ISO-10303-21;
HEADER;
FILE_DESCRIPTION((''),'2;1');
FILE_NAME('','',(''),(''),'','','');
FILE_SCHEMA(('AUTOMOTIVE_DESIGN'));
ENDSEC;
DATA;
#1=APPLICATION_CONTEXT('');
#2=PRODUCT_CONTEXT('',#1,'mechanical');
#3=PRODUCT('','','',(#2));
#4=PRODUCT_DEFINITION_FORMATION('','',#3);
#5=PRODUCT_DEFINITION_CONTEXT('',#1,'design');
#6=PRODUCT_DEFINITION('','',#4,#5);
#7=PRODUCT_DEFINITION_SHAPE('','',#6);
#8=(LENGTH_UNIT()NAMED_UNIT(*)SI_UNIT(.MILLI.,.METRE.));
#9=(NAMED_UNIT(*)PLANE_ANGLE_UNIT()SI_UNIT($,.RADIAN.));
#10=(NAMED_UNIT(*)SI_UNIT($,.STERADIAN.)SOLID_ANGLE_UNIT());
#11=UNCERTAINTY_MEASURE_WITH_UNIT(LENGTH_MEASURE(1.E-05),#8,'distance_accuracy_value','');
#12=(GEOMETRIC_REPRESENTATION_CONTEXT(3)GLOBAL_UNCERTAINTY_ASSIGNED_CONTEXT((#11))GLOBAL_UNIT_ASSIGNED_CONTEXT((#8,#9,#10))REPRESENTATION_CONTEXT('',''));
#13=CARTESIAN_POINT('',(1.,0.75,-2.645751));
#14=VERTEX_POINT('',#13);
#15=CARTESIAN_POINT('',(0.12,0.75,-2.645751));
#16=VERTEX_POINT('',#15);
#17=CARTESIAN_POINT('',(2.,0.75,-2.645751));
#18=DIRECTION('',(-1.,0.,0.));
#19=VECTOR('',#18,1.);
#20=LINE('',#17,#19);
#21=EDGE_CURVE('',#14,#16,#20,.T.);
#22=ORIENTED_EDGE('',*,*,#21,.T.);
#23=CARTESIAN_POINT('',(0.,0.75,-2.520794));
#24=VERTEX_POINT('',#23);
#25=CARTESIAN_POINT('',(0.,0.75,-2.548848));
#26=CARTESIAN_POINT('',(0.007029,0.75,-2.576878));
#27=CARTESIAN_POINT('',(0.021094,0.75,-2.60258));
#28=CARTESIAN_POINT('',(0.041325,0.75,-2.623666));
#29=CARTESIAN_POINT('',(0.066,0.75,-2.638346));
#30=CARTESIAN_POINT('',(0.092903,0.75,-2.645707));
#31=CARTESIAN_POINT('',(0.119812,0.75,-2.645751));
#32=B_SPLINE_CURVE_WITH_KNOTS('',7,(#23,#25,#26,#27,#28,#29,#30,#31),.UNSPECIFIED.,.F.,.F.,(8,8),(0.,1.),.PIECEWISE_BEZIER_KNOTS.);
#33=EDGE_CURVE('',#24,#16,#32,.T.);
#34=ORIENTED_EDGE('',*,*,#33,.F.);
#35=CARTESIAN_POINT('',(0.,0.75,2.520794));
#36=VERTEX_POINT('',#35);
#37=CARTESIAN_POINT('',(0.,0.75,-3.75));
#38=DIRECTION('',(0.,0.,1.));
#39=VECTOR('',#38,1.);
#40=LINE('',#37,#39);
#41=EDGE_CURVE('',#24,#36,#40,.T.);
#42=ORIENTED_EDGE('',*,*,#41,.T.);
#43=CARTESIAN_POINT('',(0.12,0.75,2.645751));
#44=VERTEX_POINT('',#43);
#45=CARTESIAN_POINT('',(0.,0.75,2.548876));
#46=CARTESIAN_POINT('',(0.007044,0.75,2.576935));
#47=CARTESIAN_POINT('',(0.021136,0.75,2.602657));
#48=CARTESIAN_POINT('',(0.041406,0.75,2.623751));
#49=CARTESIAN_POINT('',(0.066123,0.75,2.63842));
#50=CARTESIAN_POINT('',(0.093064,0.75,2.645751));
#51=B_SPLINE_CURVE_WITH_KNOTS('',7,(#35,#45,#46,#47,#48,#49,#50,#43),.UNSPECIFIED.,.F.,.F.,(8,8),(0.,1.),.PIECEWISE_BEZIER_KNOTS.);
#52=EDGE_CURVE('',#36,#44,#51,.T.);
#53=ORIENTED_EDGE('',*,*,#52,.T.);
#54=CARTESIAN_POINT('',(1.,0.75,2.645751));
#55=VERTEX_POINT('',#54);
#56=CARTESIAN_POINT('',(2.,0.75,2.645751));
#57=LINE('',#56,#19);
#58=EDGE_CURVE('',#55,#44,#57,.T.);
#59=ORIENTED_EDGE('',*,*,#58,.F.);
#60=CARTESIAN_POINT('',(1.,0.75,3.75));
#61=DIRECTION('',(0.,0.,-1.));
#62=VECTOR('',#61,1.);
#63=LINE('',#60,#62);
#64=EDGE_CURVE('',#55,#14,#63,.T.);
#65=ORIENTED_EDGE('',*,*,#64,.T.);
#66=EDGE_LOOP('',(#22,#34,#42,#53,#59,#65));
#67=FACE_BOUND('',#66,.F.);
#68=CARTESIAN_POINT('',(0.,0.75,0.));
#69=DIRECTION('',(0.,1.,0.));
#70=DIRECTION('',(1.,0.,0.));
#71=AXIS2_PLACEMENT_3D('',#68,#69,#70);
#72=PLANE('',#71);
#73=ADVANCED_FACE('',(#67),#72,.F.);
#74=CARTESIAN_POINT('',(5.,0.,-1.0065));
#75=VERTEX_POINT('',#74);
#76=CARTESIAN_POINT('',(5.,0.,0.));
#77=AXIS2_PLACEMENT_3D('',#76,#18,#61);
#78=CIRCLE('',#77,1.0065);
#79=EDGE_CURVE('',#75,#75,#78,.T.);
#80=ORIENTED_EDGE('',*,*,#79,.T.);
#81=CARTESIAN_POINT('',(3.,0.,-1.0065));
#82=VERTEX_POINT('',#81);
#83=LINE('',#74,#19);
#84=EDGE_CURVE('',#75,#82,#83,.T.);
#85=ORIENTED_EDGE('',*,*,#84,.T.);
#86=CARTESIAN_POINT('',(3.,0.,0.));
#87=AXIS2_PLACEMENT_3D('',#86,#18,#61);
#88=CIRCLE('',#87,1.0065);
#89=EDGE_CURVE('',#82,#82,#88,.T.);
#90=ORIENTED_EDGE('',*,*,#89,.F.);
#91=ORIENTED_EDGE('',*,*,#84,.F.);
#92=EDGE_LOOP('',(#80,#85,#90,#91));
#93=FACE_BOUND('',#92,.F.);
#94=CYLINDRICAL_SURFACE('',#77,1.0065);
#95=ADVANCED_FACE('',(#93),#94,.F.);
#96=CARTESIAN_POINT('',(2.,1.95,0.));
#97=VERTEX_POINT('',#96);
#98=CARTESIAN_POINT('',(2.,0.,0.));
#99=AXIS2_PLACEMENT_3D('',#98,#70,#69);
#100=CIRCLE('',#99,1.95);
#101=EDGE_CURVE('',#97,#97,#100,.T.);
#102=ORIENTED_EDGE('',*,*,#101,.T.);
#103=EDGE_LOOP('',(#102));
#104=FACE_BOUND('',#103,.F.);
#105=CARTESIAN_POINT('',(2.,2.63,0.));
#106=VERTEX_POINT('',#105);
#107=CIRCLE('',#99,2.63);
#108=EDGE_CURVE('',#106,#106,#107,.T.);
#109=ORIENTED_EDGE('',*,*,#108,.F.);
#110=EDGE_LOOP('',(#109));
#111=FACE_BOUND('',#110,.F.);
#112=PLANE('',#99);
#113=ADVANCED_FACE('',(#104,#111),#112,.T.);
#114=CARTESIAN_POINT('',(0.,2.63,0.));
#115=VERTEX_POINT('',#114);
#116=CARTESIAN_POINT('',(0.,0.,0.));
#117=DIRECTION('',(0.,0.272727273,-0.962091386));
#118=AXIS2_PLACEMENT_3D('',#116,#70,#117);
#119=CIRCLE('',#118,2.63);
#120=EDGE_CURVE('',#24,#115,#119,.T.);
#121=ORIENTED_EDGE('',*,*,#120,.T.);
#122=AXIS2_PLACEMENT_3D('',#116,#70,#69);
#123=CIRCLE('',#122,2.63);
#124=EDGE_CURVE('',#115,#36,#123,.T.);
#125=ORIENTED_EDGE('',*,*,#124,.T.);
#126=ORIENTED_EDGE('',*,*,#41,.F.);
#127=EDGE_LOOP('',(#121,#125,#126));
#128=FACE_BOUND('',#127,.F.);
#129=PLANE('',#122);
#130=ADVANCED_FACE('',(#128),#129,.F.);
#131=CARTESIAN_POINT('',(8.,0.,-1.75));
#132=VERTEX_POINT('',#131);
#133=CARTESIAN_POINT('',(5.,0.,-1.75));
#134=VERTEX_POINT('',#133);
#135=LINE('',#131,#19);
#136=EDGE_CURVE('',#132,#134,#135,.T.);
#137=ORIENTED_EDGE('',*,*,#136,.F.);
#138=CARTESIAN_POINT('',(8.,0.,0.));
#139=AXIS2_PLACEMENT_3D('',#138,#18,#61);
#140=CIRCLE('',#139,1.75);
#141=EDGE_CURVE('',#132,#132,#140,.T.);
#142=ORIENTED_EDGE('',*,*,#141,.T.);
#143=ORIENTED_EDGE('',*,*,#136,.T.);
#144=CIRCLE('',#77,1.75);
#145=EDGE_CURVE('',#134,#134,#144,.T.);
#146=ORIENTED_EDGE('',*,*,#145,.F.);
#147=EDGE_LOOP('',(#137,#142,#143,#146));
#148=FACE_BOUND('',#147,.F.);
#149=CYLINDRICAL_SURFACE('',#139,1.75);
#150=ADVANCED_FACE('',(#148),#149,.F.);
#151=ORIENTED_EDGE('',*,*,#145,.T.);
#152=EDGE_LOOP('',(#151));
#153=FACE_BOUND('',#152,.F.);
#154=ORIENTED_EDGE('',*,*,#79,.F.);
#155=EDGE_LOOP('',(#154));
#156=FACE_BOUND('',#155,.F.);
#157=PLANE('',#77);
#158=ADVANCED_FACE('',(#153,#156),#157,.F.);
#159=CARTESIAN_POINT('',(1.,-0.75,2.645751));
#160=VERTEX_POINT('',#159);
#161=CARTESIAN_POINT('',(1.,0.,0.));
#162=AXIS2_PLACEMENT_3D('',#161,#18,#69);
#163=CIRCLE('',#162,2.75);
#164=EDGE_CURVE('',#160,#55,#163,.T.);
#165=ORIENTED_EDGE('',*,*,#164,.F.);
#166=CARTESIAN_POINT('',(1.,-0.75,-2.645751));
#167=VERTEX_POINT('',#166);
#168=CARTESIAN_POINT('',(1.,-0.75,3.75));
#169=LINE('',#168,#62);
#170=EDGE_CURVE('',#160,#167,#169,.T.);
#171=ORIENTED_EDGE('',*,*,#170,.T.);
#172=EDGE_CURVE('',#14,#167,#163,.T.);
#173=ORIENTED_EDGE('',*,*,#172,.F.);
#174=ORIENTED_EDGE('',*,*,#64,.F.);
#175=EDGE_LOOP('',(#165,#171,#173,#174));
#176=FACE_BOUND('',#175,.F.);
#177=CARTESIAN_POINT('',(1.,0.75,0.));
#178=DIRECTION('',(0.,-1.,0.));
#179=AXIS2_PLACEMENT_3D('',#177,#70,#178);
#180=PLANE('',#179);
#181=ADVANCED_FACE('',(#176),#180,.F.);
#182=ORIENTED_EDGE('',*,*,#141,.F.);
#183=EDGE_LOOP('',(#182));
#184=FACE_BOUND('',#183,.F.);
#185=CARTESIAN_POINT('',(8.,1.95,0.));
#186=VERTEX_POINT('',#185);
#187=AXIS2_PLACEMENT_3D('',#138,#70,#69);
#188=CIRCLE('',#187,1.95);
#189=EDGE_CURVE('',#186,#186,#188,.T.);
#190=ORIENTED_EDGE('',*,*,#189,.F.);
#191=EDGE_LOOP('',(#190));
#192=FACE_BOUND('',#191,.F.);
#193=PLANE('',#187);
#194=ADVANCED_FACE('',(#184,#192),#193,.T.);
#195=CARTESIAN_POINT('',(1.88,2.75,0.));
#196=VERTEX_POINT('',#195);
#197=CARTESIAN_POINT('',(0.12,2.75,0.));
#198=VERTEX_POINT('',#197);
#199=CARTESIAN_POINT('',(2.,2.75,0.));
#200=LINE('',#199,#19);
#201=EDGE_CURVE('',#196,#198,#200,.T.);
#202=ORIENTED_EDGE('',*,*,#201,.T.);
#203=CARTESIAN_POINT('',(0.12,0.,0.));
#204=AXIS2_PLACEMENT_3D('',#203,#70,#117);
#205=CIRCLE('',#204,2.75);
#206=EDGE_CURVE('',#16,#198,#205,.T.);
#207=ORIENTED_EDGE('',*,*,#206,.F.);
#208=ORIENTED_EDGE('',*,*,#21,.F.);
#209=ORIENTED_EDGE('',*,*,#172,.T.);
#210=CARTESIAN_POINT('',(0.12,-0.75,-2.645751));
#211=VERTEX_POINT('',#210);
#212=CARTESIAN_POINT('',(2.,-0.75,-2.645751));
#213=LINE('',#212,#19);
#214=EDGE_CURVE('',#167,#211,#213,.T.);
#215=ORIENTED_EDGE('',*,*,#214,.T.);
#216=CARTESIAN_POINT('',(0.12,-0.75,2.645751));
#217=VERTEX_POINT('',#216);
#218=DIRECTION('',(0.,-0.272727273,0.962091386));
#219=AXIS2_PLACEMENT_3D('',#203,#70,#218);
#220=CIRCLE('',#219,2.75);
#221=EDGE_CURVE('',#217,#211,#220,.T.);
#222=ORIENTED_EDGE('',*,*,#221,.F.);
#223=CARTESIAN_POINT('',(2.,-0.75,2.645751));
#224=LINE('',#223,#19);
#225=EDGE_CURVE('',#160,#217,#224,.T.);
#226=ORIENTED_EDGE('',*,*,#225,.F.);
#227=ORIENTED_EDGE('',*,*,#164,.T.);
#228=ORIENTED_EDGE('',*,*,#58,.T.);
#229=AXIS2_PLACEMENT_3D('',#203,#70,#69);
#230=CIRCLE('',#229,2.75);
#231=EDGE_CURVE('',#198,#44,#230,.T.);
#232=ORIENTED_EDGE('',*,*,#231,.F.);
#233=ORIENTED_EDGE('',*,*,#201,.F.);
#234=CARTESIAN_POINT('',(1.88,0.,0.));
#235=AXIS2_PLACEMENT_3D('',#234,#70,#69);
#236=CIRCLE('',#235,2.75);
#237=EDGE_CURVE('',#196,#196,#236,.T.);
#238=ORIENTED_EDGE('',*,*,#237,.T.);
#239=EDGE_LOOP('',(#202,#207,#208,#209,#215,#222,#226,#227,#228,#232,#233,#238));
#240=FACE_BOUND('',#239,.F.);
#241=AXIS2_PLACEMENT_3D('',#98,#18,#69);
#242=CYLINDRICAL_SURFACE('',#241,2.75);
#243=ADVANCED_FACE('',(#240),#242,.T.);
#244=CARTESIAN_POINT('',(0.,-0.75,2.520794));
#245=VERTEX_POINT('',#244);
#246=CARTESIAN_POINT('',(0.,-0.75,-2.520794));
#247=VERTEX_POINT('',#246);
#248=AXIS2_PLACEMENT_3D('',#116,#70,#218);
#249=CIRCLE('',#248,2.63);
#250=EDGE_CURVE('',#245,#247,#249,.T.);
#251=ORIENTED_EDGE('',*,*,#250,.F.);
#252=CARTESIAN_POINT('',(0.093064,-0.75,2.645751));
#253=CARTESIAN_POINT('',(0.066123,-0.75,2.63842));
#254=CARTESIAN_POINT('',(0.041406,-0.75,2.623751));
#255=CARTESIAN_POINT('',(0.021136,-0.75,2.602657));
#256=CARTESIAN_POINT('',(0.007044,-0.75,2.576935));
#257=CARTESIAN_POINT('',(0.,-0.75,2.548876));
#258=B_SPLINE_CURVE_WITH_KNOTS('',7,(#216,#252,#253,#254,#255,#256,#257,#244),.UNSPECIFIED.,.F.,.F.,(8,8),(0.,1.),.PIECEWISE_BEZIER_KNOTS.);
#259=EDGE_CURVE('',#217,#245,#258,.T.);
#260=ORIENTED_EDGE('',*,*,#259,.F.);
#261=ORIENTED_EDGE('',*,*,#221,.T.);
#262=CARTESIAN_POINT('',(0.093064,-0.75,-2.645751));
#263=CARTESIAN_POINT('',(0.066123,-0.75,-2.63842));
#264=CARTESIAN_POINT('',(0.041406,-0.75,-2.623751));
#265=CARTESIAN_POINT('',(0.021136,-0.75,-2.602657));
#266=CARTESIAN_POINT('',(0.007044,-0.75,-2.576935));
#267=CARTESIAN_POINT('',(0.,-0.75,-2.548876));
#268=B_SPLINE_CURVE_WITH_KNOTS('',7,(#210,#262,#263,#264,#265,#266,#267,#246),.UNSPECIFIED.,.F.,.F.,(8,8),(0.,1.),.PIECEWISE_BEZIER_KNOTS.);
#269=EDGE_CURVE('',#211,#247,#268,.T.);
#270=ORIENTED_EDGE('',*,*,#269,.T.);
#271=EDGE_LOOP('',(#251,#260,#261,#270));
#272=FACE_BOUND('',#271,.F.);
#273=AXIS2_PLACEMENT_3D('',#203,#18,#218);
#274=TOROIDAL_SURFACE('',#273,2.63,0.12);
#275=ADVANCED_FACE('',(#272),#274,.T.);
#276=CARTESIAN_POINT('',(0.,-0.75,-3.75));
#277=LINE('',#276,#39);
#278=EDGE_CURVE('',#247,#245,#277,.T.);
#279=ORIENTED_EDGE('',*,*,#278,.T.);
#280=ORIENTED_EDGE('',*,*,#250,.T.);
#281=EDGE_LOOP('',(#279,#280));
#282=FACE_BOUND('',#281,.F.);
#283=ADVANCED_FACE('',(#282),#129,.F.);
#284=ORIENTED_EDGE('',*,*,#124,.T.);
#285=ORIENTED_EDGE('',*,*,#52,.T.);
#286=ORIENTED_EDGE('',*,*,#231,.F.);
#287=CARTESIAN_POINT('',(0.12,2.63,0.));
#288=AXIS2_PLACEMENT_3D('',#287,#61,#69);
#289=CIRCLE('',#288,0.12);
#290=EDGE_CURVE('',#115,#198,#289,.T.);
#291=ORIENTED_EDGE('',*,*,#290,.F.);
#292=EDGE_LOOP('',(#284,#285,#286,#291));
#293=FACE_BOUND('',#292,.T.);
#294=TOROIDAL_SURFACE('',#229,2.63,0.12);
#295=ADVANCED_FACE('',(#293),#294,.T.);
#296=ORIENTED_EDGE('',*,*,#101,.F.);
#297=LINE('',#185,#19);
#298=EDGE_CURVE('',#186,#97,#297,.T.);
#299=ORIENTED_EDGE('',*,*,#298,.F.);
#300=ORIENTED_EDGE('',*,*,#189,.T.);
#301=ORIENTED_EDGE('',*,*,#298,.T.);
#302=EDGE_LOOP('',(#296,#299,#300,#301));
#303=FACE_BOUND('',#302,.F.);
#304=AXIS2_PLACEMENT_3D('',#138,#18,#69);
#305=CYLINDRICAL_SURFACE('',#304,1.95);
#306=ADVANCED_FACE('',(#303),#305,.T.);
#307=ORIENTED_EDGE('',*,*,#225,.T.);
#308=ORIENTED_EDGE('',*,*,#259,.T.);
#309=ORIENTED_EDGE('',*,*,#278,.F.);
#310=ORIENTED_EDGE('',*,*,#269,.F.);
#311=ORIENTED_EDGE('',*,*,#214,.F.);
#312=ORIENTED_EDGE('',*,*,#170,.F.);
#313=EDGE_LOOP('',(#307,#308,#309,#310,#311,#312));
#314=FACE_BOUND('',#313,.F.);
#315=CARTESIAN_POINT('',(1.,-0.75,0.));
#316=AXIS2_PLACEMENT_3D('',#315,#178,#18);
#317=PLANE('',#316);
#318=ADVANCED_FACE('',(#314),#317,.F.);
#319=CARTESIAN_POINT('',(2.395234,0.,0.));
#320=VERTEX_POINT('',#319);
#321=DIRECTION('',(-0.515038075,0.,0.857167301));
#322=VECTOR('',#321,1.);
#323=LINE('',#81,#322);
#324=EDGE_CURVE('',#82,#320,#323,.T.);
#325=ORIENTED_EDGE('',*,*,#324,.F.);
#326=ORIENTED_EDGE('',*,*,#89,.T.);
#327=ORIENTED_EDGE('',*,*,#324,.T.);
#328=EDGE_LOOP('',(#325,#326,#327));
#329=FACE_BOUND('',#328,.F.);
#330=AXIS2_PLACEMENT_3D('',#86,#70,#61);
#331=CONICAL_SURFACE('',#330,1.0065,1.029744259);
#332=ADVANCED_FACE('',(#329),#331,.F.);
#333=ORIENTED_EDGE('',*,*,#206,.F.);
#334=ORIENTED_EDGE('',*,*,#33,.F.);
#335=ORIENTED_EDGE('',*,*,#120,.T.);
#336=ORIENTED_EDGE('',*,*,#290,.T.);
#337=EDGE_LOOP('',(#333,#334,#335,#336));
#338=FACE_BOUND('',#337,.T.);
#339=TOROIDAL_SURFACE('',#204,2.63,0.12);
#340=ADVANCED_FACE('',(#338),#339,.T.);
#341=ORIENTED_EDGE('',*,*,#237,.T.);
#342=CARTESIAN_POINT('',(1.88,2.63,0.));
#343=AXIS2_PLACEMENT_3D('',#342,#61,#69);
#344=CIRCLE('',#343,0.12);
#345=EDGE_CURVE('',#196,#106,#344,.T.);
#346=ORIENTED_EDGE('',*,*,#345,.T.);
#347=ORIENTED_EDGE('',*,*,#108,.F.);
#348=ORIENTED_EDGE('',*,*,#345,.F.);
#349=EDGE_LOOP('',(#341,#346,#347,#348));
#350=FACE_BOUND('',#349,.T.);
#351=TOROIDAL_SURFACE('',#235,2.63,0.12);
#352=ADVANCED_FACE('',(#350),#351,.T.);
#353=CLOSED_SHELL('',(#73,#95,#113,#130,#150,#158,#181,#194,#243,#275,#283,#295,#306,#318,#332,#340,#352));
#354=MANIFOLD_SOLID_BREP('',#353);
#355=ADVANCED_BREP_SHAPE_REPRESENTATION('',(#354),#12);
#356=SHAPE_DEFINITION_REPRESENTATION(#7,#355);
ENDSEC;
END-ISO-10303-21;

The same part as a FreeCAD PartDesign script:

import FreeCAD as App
import Part
import Sketcher
Q = App.Units.Quantity


def edges_at(feature, points):
    """Names of the edges that pass closest to the given points."""
    edges = feature.Shape.Edges
    near = lambda p: min(range(len(edges)), key=lambda i: edges[i].distToShape(Part.Vertex(*p))[0])
    return sorted({f"Edge{near(p) + 1}" for p in points})


def add_polygon(sketch, points):
    """Adds a closed chain of lines whose ends are joined by coincident constraints."""
    first, n = sketch.GeometryCount, len(points)
    for a, b in zip(points, points[1:] + points[:1]):
        sketch.addGeometry(Part.LineSegment(App.Vector(*a, 0), App.Vector(*b, 0)), False)
    for i in range(n):
        sketch.addConstraint(Sketcher.Constraint("Coincident", first + i, 2, first + (i + 1) % n, 1))

doc = App.newDocument("Part")
params = doc.addObject("Spreadsheet::Sheet", "Params")
for row, (alias, value) in enumerate([
    ("sketch1_width", "8 mm"),
    ("sketch1_width2", "2 mm"),
    ("sketch1_height", "0.8 mm"),
    ("sketch1_height2", "2.75 mm"),
    ("revolution_angle", "360 deg"),
    ("sketch2_width", "1 mm"),
    ("sketch2_height", "1.5 mm"),
    ("hole_diameter", "2.013 mm"),
    ("hole_depth", "5 mm"),
    ("hole_cbore_diameter", "3.5 mm"),
    ("hole_cbore_depth", "3 mm"),
    ("fillet_radius", "0.12 mm"),
], start=1):
    params.set(f"A{row}", alias)
    params.set(f"B{row}", "=" + value)
    params.setAlias(f"B{row}", alias)

body = doc.addObject("PartDesign::Body", "Body")

# Sketch on XY plane
sketch1 = body.newObject("Sketcher::SketchObject", "Sketch")
sketch1.AttachmentSupport = (doc.getObject("XY_Plane"), [""])
sketch1.MapMode = "FlatFace"
add_polygon(sketch1, [(0, 2.8), (0, 0), (8, 0), (8, 1.9), (2, 1.9), (2, 2.8)])  # lines 0-5
sketch1.addConstraint([
    Sketcher.Constraint("Vertical", 0),
    Sketcher.Constraint("Horizontal", 1),
    Sketcher.Constraint("Vertical", 2),
    Sketcher.Constraint("Horizontal", 3),
    Sketcher.Constraint("Vertical", 4),
    Sketcher.Constraint("Horizontal", 5),
    Sketcher.Constraint("Coincident", 0, 2, -1, 1),
    Sketcher.Constraint("DistanceX", 1, 1, 1, 2, Q("8 mm")),
    Sketcher.Constraint("DistanceX", 5, 2, 5, 1, Q("2 mm")),
    Sketcher.Constraint("DistanceY", 4, 1, 4, 2, Q("0.8 mm")),
    Sketcher.Constraint("DistanceY", 0, 2, 0, 1, Q("2.75 mm")),
])
sketch1.setExpression("Constraints[13]", "Params.sketch1_width")
sketch1.setExpression("Constraints[14]", "Params.sketch1_width2")
sketch1.setExpression("Constraints[15]", "Params.sketch1_height")
sketch1.setExpression("Constraints[16]", "Params.sketch1_height2")
revolution = body.newObject("PartDesign::Revolution", "Revolution")
revolution.Profile = sketch1
revolution.ReferenceAxis = (sketch1, ["H_Axis"])
revolution.setExpression("Angle", "Params.revolution_angle")

# Sketch on XY plane
sketch2 = body.newObject("Sketcher::SketchObject", "Sketch001")
sketch2.AttachmentSupport = (doc.getObject("XY_Plane"), [""])
sketch2.MapMode = "FlatFace"
add_polygon(sketch2, [(1, 0.8), (0, 0.8), (0, -0.8), (1, -0.8)])  # lines 0-3
sketch2.addConstraint([
    Sketcher.Constraint("Horizontal", 0),
    Sketcher.Constraint("Vertical", 1),
    Sketcher.Constraint("Horizontal", 2),
    Sketcher.Constraint("Vertical", 3),
    Sketcher.Constraint("Symmetric", 0, 2, 1, 2, -1, 1),
    Sketcher.Constraint("DistanceX", 0, 2, 0, 1, Q("1 mm")),
    Sketcher.Constraint("DistanceY", 1, 2, 1, 1, Q("1.5 mm")),
])
sketch2.setExpression("Constraints[9]", "Params.sketch2_width")
sketch2.setExpression("Constraints[10]", "Params.sketch2_height")
pocket1 = body.newObject("PartDesign::Pocket", "Pocket")
pocket1.Profile = sketch2
pocket1.Type = "ThroughAll"
pocket1.Midplane = True

# Sketch on YZ plane
sketch3 = body.newObject("Sketcher::SketchObject", "Sketch002")
sketch3.AttachmentSupport = (doc.getObject("YZ_Plane"), [""])
sketch3.MapMode = "FlatFace"
sketch3.AttachmentOffset = App.Placement(App.Vector(0, 0, 8), App.Rotation())
sketch3.addGeometry(Part.Circle(App.Vector(0, 0, 0), App.Vector(0, 0, 1), 1), False)
sketch3.addConstraint([
    Sketcher.Constraint("Coincident", 0, 3, -1, 1),
    Sketcher.Constraint("Diameter", 0, Q("2.013 mm")),
])
doc.recompute()
hole = body.newObject("PartDesign::Hole", "Hole")
hole.Profile = sketch3
hole.ThreadType = "None"
hole.setExpression("Diameter", "Params.hole_diameter")
hole.DepthType = "Dimension"
hole.setExpression("Depth", "Params.hole_depth")
hole.DrillPoint = "Angled"
hole.DrillPointAngle = 118
hole.HoleCutType = "Counterbore"
hole.setExpression("HoleCutDiameter", "Params.hole_cbore_diameter")
hole.setExpression("HoleCutDepth", "Params.hole_cbore_depth")
doc.recompute()

fillet = body.newObject("PartDesign::Fillet", "Fillet")
fillet.Base = (hole, edges_at(hole, [
    (0, 2.194, -1.658),
    (0, 2.194, 1.658),
    (0, -2.75, 0),
    (2, -2.75, 0),
]))
fillet.setExpression("Radius", "Params.fillet_radius")

doc.recompute()
